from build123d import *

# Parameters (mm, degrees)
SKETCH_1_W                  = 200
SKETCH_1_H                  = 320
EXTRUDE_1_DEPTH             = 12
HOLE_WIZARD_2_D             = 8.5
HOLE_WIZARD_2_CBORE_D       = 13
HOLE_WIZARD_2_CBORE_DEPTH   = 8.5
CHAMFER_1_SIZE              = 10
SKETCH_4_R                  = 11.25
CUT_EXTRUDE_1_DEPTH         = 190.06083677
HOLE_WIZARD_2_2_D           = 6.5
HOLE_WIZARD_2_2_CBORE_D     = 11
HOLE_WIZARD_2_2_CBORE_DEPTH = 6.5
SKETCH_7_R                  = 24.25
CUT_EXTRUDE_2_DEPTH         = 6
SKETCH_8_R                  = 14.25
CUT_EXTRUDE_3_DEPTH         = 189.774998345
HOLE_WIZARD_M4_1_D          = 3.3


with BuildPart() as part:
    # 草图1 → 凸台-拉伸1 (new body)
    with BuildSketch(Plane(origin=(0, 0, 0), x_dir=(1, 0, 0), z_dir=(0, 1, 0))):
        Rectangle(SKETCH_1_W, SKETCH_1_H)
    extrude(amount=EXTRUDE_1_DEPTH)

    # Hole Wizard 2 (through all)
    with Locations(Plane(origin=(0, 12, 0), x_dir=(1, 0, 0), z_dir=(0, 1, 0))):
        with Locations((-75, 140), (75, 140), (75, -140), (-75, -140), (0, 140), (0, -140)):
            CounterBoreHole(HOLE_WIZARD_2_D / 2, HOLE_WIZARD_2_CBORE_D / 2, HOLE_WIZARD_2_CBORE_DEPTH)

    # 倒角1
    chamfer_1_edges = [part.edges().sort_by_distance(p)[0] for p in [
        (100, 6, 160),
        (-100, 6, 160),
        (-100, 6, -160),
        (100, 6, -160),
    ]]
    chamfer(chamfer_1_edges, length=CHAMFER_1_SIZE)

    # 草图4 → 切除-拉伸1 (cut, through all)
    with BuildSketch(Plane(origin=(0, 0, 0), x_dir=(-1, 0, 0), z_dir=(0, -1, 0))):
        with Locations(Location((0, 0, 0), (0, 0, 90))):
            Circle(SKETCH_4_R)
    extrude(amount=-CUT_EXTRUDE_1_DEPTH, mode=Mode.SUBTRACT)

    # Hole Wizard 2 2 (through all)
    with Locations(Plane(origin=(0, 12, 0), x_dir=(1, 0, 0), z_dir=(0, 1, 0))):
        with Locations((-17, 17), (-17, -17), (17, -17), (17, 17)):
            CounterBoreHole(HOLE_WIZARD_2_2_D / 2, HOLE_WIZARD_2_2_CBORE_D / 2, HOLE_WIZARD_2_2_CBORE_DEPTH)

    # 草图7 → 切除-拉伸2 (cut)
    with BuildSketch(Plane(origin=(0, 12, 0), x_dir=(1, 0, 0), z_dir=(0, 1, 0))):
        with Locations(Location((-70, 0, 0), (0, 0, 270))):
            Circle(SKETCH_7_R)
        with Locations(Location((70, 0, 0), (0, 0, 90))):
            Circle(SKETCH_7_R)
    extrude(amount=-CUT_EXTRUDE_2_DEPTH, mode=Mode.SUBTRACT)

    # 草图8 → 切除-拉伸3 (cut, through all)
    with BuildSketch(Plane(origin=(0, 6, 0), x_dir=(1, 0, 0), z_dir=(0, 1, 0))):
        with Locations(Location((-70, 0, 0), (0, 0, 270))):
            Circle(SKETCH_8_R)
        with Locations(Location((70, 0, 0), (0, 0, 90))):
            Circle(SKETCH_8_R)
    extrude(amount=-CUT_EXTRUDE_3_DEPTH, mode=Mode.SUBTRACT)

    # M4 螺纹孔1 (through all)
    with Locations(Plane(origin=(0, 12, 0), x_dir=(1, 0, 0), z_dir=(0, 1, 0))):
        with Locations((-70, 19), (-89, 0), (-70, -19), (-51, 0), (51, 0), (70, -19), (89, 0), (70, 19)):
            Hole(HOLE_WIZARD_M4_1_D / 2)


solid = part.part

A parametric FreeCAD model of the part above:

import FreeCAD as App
import Part
import Sketcher
Q = App.Units.Quantity


def edges_at(feature, points):
    """Names of the edges that pass closest to the given points."""
    edges = feature.Shape.Edges
    near = lambda p: min(range(len(edges)), key=lambda i: edges[i].distToShape(Part.Vertex(*p))[0])
    return sorted({f"Edge{near(p) + 1}" for p in points})


def add_polygon(sketch, points):
    """Adds a closed chain of lines whose ends are joined by coincident constraints."""
    first, n = sketch.GeometryCount, len(points)
    for a, b in zip(points, points[1:] + points[:1]):
        sketch.addGeometry(Part.LineSegment(App.Vector(*a, 0), App.Vector(*b, 0)), False)
    for i in range(n):
        sketch.addConstraint(Sketcher.Constraint("Coincident", first + i, 2, first + (i + 1) % n, 1))

doc = App.newDocument("Part")
params = doc.addObject("Spreadsheet::Sheet", "Params")
for row, (alias, value) in enumerate([
    ("sketch1_width", "200 mm"),
    ("sketch1_height", "320 mm"),
    ("pad1_length", "12 mm"),
    ("sketch2_diameter", "8.5 mm"),
    ("hole_diameter", "8.5 mm"),
    ("hole_cbore_diameter", "13 mm"),
    ("hole_cbore_depth", "8.5 mm"),
    ("chamfer_size", "10 mm"),
    ("sketch3_diameter", "22.5 mm"),
    ("sketch4_diameter", "6.5 mm"),
    ("hole2_diameter", "6.5 mm"),
    ("hole2_cbore_diameter", "11 mm"),
    ("hole2_cbore_depth", "6.5 mm"),
    ("sketch5_diameter", "48.5 mm"),
    ("pocket2_length", "6 mm"),
    ("sketch6_diameter", "28.5 mm"),
    ("sketch7_diameter", "3.3 mm"),
    ("hole3_diameter", "3.3 mm"),
], start=1):
    params.set(f"A{row}", alias)
    params.set(f"B{row}", "=" + value)
    params.setAlias(f"B{row}", alias)

body = doc.addObject("PartDesign::Body", "Body")

# Sketch on XZ plane
sketch1 = doc.addObject("Sketcher::SketchObject", "Sketch")
body.addObject(sketch1)
sketch1.AttachmentSupport = (doc.XZ_Plane, [""])
sketch1.MapMode = "FlatFace"
add_polygon(sketch1, [(-100, -160), (-100, 160), (100, 160), (100, -160)])  # lines 0-3
sketch1.addConstraint(Sketcher.Constraint("Vertical", 0))
sketch1.addConstraint(Sketcher.Constraint("Horizontal", 1))
sketch1.addConstraint(Sketcher.Constraint("Vertical", 2))
sketch1.addConstraint(Sketcher.Constraint("Horizontal", 3))
sketch1.addConstraint(Sketcher.Constraint("Symmetric", 0, 2, 2, 2, -1, 1))
sketch1.addConstraint(Sketcher.Constraint("DistanceX", 1, 1, 1, 2, Q("200 mm")))
sketch1.addConstraint(Sketcher.Constraint("DistanceY", 0, 1, 0, 2, Q("320 mm")))
sketch1.setExpression("Constraints[9]", "Params.sketch1_width")
sketch1.setExpression("Constraints[10]", "Params.sketch1_height")
pad1 = doc.addObject("PartDesign::Pad", "Pad")
body.addObject(pad1)
pad1.Profile = sketch1
pad1.setExpression("Length", "Params.pad1_length")
pad1.Reversed = True

# Sketch on XZ plane
sketch2 = doc.addObject("Sketcher::SketchObject", "Sketch001")
body.addObject(sketch2)
sketch2.AttachmentSupport = (doc.XZ_Plane, [""])
sketch2.MapMode = "FlatFace"
sketch2.AttachmentOffset = App.Placement(App.Vector(0, 0, -12), App.Rotation())
sketch2.addGeometry(Part.Circle(App.Vector(-75, -140, 0), App.Vector(0, 0, 1), 4.25), False)
sketch2.addGeometry(Part.Circle(App.Vector(75, -140, 0), App.Vector(0, 0, 1), 4.25), False)
sketch2.addGeometry(Part.Circle(App.Vector(75, 140, 0), App.Vector(0, 0, 1), 4.25), False)
sketch2.addGeometry(Part.Circle(App.Vector(-75, 140, 0), App.Vector(0, 0, 1), 4.25), False)
sketch2.addGeometry(Part.Circle(App.Vector(0, -140, 0), App.Vector(0, 0, 1), 4.25), False)
sketch2.addGeometry(Part.Circle(App.Vector(0, 140, 0), App.Vector(0, 0, 1), 4.25), False)
sketch2.addConstraint(Sketcher.Constraint("Equal", 0, 1))
sketch2.addConstraint(Sketcher.Constraint("Equal", 1, 2))
sketch2.addConstraint(Sketcher.Constraint("Equal", 2, 3))
sketch2.addConstraint(Sketcher.Constraint("Equal", 3, 4))
sketch2.addConstraint(Sketcher.Constraint("Equal", 4, 5))
sketch2.addConstraint(Sketcher.Constraint("Symmetric", 0, 3, 2, 3, -1, 1))
sketch2.addConstraint(Sketcher.Constraint("Symmetric", 1, 3, 3, 3, -1, 1))
sketch2.addConstraint(Sketcher.Constraint("Symmetric", 4, 3, 5, 3, -1, 1))
sketch2.addConstraint(Sketcher.Constraint("Symmetric", 0, 3, 1, 3, -2))
sketch2.addConstraint(Sketcher.Constraint("PointOnObject", 4, 3, -2))
sketch2.addConstraint(Sketcher.Constraint("Horizontal", 1, 3, 4, 3))
sketch2.addConstraint(Sketcher.Constraint("Diameter", 0, Q("8.5 mm")))
sketch2.addConstraint(Sketcher.Constraint("DistanceX", 0, 3, -1, 1, Q("75 mm")))
sketch2.addConstraint(Sketcher.Constraint("DistanceY", 0, 3, -1, 1, Q("140 mm")))
sketch2.setExpression("Constraints[11]", "Params.sketch2_diameter")
doc.recompute()
hole = doc.addObject("PartDesign::Hole", "Hole")
body.addObject(hole)
hole.Profile = sketch2
hole.ThreadType = "None"
hole.setExpression("Diameter", "Params.hole_diameter")
hole.DepthType = "ThroughAll"
hole.HoleCutType = "Counterbore"
hole.setExpression("HoleCutDiameter", "Params.hole_cbore_diameter")
hole.setExpression("HoleCutDepth", "Params.hole_cbore_depth")
hole.Reversed = True
doc.recompute()

chamfer = doc.addObject("PartDesign::Chamfer", "Chamfer")
body.addObject(chamfer)
chamfer.Base = (hole, edges_at(hole, [
    (100, 6, 160),
    (-100, 6, 160),
    (-100, 6, -160),
    (100, 6, -160),
]))
chamfer.setExpression("Size", "Params.chamfer_size")

# Sketch on XZ plane
sketch3 = doc.addObject("Sketcher::SketchObject", "Sketch002")
body.addObject(sketch3)
sketch3.AttachmentSupport = (doc.XZ_Plane, [""])
sketch3.MapMode = "FlatFace"
sketch3.addGeometry(Part.Circle(App.Vector(0, 0, 0), App.Vector(0, 0, 1), 11.25), False)
sketch3.addConstraint(Sketcher.Constraint("Coincident", 0, 3, -1, 1))
sketch3.addConstraint(Sketcher.Constraint("Diameter", 0, Q("22.5 mm")))
sketch3.setExpression("Constraints[1]", "Params.sketch3_diameter")
pocket1 = doc.addObject("PartDesign::Pocket", "Pocket")
body.addObject(pocket1)
pocket1.Profile = sketch3
pocket1.Type = "ThroughAll"

# Sketch on XZ plane
sketch4 = doc.addObject("Sketcher::SketchObject", "Sketch003")
body.addObject(sketch4)
sketch4.AttachmentSupport = (doc.XZ_Plane, [""])
sketch4.MapMode = "FlatFace"
sketch4.AttachmentOffset = App.Placement(App.Vector(0, 0, -12), App.Rotation())
sketch4.addGeometry(Part.Circle(App.Vector(-17, -17, 0), App.Vector(0, 0, 1), 3.25), False)
sketch4.addGeometry(Part.Circle(App.Vector(-17, 17, 0), App.Vector(0, 0, 1), 3.25), False)
sketch4.addGeometry(Part.Circle(App.Vector(17, 17, 0), App.Vector(0, 0, 1), 3.25), False)
sketch4.addGeometry(Part.Circle(App.Vector(17, -17, 0), App.Vector(0, 0, 1), 3.25), False)
sketch4.addConstraint(Sketcher.Constraint("Equal", 0, 1))
sketch4.addConstraint(Sketcher.Constraint("Equal", 1, 2))
sketch4.addConstraint(Sketcher.Constraint("Equal", 2, 3))
sketch4.addConstraint(Sketcher.Constraint("Symmetric", 0, 3, 2, 3, -1, 1))
sketch4.addConstraint(Sketcher.Constraint("Symmetric", 1, 3, 3, 3, -1, 1))
sketch4.addConstraint(Sketcher.Constraint("Symmetric", 1, 3, 2, 3, -2))
sketch4.addConstraint(Sketcher.Constraint("Diameter", 0, Q("6.5 mm")))
sketch4.addConstraint(Sketcher.Constraint("DistanceX", 0, 3, -1, 1, Q("17 mm")))
sketch4.addConstraint(Sketcher.Constraint("DistanceY", 0, 3, -1, 1, Q("17 mm")))
sketch4.setExpression("Constraints[6]", "Params.sketch4_diameter")
doc.recompute()
hole2 = doc.addObject("PartDesign::Hole", "Hole001")
body.addObject(hole2)
hole2.Profile = sketch4
hole2.ThreadType = "None"
hole2.setExpression("Diameter", "Params.hole2_diameter")
hole2.DepthType = "ThroughAll"
hole2.HoleCutType = "Counterbore"
hole2.setExpression("HoleCutDiameter", "Params.hole2_cbore_diameter")
hole2.setExpression("HoleCutDepth", "Params.hole2_cbore_depth")
hole2.Reversed = True

# Sketch on XZ plane
sketch5 = doc.addObject("Sketcher::SketchObject", "Sketch004")
body.addObject(sketch5)
sketch5.AttachmentSupport = (doc.XZ_Plane, [""])
sketch5.MapMode = "FlatFace"
sketch5.AttachmentOffset = App.Placement(App.Vector(0, 0, -12), App.Rotation())
sketch5.addGeometry(Part.Circle(App.Vector(-70, 0, 0), App.Vector(0, 0, 1), 24.25), False)
sketch5.addGeometry(Part.Circle(App.Vector(70, 0, 0), App.Vector(0, 0, 1), 24.25), False)
sketch5.addConstraint(Sketcher.Constraint("Equal", 0, 1))
sketch5.addConstraint(Sketcher.Constraint("Symmetric", 0, 3, 1, 3, -1, 1))
sketch5.addConstraint(Sketcher.Constraint("PointOnObject", 0, 3, -1))
sketch5.addConstraint(Sketcher.Constraint("Diameter", 0, Q("48.5 mm")))
sketch5.addConstraint(Sketcher.Constraint("DistanceX", 0, 3, -1, 1, Q("70 mm")))
sketch5.setExpression("Constraints[3]", "Params.sketch5_diameter")
pocket2 = doc.addObject("PartDesign::Pocket", "Pocket001")
body.addObject(pocket2)
pocket2.Profile = sketch5
pocket2.setExpression("Length", "Params.pocket2_length")
pocket2.Reversed = True

# Sketch on XZ plane
sketch6 = doc.addObject("Sketcher::SketchObject", "Sketch005")
body.addObject(sketch6)
sketch6.AttachmentSupport = (doc.XZ_Plane, [""])
sketch6.MapMode = "FlatFace"
sketch6.AttachmentOffset = App.Placement(App.Vector(0, 0, -6), App.Rotation())
sketch6.addGeometry(Part.Circle(App.Vector(-70, 0, 0), App.Vector(0, 0, 1), 14.25), False)
sketch6.addGeometry(Part.Circle(App.Vector(70, 0, 0), App.Vector(0, 0, 1), 14.25), False)
sketch6.addConstraint(Sketcher.Constraint("Equal", 0, 1))
sketch6.addConstraint(Sketcher.Constraint("Symmetric", 0, 3, 1, 3, -1, 1))
sketch6.addConstraint(Sketcher.Constraint("PointOnObject", 0, 3, -1))
sketch6.addConstraint(Sketcher.Constraint("Diameter", 0, Q("28.5 mm")))
sketch6.addConstraint(Sketcher.Constraint("DistanceX", 0, 3, -1, 1, Q("70 mm")))
sketch6.setExpression("Constraints[3]", "Params.sketch6_diameter")
pocket3 = doc.addObject("PartDesign::Pocket", "Pocket002")
body.addObject(pocket3)
pocket3.Profile = sketch6
pocket3.Type = "ThroughAll"
pocket3.Reversed = True

# Sketch on XZ plane
sketch7 = doc.addObject("Sketcher::SketchObject", "Sketch006")
body.addObject(sketch7)
sketch7.AttachmentSupport = (doc.XZ_Plane, [""])
sketch7.MapMode = "FlatFace"
sketch7.AttachmentOffset = App.Placement(App.Vector(0, 0, -12), App.Rotation())
sketch7.addGeometry(Part.Circle(App.Vector(-70, -19, 0), App.Vector(0, 0, 1), 1.65), False)
sketch7.addGeometry(Part.Circle(App.Vector(-89, 0, 0), App.Vector(0, 0, 1), 1.65), False)
sketch7.addGeometry(Part.Circle(App.Vector(-70, 19, 0), App.Vector(0, 0, 1), 1.65), False)
sketch7.addGeometry(Part.Circle(App.Vector(-51, 0, 0), App.Vector(0, 0, 1), 1.65), False)
sketch7.addGeometry(Part.Circle(App.Vector(51, 0, 0), App.Vector(0, 0, 1), 1.65), False)
sketch7.addGeometry(Part.Circle(App.Vector(70, 19, 0), App.Vector(0, 0, 1), 1.65), False)
sketch7.addGeometry(Part.Circle(App.Vector(89, 0, 0), App.Vector(0, 0, 1), 1.65), False)
sketch7.addGeometry(Part.Circle(App.Vector(70, -19, 0), App.Vector(0, 0, 1), 1.65), False)
sketch7.addConstraint(Sketcher.Constraint("Equal", 0, 1))
sketch7.addConstraint(Sketcher.Constraint("Equal", 1, 2))
sketch7.addConstraint(Sketcher.Constraint("Equal", 2, 3))
sketch7.addConstraint(Sketcher.Constraint("Equal", 3, 4))
sketch7.addConstraint(Sketcher.Constraint("Equal", 4, 5))
sketch7.addConstraint(Sketcher.Constraint("Equal", 5, 6))
sketch7.addConstraint(Sketcher.Constraint("Equal", 6, 7))
sketch7.addConstraint(Sketcher.Constraint("Symmetric", 3, 3, 4, 3, -1, 1))
sketch7.addConstraint(Sketcher.Constraint("Symmetric", 0, 3, 5, 3, -1, 1))
sketch7.addConstraint(Sketcher.Constraint("Symmetric", 1, 3, 6, 3, -1, 1))
sketch7.addConstraint(Sketcher.Constraint("Symmetric", 2, 3, 7, 3, -1, 1))
sketch7.addConstraint(Sketcher.Constraint("Symmetric", 2, 3, 5, 3, -2))
sketch7.addConstraint(Sketcher.Constraint("PointOnObject", 1, 3, -1))
sketch7.addConstraint(Sketcher.Constraint("PointOnObject", 3, 3, -1))
sketch7.addConstraint(Sketcher.Constraint("Diameter", 0, Q("3.3 mm")))
sketch7.addConstraint(Sketcher.Constraint("DistanceX", 0, 3, -1, 1, Q("70 mm")))
sketch7.addConstraint(Sketcher.Constraint("DistanceY", 0, 3, -1, 1, Q("19 mm")))
sketch7.addConstraint(Sketcher.Constraint("DistanceX", 1, 3, -1, 1, Q("89 mm")))
sketch7.addConstraint(Sketcher.Constraint("DistanceX", 3, 3, -1, 1, Q("51 mm")))
sketch7.setExpression("Constraints[14]", "Params.sketch7_diameter")
doc.recompute()
hole3 = doc.addObject("PartDesign::Hole", "Hole002")
body.addObject(hole3)
hole3.Profile = sketch7
hole3.ThreadType = "None"
hole3.setExpression("Diameter", "Params.hole3_diameter")
hole3.DepthType = "ThroughAll"
hole3.Reversed = True

doc.recompute()
